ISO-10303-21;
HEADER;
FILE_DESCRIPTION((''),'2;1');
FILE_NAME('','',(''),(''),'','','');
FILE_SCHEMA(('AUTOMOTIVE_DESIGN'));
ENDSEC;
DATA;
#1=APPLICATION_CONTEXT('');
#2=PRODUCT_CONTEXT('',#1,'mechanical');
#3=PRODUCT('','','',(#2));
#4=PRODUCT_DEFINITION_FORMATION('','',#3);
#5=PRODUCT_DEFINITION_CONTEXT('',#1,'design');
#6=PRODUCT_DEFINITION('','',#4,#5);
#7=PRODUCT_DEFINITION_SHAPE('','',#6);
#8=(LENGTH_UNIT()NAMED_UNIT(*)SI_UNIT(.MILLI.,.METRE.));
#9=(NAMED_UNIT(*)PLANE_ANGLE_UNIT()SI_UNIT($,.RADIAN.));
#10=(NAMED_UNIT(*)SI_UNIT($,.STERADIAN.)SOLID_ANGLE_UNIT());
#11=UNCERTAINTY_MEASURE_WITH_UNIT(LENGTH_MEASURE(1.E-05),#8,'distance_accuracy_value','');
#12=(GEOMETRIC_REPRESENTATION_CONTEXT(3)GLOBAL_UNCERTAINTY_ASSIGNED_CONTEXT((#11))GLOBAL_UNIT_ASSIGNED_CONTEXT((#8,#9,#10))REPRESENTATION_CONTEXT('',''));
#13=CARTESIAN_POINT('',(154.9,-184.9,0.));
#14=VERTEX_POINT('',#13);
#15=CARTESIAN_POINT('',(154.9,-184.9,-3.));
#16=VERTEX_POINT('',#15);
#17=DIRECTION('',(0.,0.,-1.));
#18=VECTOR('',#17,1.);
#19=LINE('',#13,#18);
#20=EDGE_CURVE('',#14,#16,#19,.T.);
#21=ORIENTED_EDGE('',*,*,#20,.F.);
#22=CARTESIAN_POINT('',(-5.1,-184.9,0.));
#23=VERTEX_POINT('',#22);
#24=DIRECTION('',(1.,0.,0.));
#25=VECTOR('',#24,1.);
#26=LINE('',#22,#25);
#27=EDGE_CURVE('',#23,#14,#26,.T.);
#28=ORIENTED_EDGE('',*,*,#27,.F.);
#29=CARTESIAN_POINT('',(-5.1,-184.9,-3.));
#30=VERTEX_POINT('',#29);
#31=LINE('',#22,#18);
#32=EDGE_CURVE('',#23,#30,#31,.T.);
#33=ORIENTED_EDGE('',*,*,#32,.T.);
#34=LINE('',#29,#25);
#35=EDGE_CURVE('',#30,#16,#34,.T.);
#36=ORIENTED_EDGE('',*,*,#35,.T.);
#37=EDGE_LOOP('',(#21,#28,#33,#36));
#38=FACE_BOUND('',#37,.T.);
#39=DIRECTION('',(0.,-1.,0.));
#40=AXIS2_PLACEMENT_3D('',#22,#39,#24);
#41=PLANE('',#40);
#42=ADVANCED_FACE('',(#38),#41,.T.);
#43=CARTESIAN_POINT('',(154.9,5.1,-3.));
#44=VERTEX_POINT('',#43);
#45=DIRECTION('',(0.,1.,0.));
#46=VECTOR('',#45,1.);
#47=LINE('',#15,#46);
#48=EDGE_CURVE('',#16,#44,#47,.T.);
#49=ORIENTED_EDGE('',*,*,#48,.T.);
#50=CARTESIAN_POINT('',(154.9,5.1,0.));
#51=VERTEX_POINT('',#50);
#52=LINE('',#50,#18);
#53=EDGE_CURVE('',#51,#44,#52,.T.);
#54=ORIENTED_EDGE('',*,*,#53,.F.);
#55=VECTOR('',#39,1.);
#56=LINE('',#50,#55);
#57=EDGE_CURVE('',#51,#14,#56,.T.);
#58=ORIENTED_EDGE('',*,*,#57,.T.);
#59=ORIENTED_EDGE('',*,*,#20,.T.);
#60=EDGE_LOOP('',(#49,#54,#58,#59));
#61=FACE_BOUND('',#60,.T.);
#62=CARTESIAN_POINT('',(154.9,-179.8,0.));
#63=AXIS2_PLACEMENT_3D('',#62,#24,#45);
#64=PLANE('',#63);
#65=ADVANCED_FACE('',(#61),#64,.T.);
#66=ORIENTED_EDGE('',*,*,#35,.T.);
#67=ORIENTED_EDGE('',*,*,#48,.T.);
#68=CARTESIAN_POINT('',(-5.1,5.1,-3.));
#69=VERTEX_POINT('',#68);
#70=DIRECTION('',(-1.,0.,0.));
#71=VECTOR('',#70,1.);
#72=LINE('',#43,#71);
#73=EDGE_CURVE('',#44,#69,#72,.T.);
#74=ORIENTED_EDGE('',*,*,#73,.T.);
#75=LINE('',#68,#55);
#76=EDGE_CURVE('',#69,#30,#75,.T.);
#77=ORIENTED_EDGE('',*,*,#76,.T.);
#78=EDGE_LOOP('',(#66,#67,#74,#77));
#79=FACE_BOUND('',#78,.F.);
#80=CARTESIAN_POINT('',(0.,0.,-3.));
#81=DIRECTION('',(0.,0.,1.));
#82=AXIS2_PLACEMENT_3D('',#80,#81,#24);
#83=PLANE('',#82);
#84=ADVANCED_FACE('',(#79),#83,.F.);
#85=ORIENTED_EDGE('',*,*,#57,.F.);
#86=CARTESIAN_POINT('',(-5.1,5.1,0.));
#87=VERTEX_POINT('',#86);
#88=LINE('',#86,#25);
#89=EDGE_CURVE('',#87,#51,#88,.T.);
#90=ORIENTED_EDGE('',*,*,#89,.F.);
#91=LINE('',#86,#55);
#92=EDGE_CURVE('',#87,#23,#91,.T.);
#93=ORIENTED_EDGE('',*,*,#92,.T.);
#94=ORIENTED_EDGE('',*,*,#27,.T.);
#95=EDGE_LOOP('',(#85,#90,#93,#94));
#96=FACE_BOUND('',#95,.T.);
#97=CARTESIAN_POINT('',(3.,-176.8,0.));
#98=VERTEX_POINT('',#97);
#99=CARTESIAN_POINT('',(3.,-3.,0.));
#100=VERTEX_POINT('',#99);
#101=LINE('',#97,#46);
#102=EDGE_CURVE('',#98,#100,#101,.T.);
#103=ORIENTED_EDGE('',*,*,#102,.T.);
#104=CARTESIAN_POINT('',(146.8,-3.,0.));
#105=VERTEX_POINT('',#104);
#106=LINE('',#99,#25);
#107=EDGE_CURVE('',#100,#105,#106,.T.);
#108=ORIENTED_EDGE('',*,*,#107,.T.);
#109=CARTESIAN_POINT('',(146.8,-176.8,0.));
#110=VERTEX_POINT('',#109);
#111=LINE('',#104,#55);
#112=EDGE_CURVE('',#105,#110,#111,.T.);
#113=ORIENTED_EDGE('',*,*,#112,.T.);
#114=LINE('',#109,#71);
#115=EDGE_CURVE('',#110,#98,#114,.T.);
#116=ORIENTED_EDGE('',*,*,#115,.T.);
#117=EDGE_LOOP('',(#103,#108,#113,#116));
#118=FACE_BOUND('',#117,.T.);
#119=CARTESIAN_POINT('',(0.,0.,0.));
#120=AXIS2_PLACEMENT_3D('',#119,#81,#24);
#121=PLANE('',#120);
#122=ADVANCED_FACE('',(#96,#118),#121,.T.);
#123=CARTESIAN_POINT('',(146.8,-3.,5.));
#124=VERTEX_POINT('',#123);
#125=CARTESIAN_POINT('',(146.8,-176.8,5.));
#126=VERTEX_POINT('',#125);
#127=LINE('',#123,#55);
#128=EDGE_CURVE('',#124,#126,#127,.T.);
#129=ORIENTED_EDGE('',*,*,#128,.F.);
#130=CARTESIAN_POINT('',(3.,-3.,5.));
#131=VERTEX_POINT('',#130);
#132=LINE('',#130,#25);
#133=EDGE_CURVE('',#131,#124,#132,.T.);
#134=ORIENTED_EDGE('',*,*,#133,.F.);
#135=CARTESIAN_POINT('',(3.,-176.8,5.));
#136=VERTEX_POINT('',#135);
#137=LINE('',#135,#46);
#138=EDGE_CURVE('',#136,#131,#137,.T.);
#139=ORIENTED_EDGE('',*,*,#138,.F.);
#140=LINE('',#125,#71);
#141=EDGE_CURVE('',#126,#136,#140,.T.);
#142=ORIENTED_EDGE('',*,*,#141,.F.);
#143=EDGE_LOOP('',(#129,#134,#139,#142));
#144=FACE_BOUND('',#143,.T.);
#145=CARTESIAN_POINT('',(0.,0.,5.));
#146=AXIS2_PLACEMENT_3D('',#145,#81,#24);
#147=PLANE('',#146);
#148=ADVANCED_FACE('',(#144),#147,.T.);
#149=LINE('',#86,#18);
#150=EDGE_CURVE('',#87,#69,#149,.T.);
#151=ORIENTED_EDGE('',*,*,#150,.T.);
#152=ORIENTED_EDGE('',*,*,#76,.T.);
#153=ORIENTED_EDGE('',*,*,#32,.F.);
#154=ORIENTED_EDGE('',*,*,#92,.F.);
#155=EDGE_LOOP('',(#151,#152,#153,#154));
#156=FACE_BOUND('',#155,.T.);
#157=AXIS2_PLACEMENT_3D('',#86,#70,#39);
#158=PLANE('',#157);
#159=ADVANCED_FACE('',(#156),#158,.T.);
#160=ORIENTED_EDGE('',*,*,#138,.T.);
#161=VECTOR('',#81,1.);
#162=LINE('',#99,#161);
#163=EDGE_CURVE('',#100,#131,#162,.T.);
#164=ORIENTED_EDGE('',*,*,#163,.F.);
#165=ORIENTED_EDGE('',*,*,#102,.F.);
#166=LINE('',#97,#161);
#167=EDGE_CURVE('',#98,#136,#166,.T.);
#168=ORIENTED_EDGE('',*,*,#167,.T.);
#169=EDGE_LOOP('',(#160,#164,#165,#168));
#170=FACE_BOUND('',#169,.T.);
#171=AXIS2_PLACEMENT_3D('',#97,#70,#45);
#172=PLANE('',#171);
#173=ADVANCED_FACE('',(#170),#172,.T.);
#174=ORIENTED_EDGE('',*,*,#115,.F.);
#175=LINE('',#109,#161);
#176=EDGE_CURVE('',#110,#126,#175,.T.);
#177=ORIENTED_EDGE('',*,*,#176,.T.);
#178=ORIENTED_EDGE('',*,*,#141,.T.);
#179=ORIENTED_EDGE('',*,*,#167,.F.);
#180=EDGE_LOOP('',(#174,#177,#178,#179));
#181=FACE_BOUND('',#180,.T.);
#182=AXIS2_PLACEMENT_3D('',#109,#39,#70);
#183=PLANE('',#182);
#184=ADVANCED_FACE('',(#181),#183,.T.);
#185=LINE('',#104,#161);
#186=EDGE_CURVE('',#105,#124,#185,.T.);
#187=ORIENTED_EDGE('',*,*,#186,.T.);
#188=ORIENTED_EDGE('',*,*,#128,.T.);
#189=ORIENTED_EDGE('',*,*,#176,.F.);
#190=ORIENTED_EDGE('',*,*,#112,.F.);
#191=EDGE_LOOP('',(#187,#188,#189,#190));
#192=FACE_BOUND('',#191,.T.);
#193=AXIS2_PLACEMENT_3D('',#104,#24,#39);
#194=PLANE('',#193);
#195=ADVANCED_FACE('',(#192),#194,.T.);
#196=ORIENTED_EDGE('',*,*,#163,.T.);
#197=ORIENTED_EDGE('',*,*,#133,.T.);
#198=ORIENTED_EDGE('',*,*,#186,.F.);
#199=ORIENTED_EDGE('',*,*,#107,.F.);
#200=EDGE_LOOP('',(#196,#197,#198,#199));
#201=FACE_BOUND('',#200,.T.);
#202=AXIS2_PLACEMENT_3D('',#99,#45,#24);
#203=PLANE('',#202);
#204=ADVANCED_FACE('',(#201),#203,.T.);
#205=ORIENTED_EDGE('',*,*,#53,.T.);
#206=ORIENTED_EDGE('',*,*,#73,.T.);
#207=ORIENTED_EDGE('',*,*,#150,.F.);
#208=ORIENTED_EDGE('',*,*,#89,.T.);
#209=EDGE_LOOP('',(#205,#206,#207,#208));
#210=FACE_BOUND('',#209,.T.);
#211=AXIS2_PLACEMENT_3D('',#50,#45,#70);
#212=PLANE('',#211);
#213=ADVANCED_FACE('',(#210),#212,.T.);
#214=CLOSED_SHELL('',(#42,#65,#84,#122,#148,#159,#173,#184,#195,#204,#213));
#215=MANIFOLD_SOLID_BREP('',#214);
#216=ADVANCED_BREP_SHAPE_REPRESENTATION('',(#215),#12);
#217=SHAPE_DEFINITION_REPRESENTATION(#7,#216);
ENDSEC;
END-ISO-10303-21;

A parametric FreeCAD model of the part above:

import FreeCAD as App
import Part
import Sketcher
Q = App.Units.Quantity


def add_polygon(sketch, points):
    """Adds a closed chain of lines whose ends are joined by coincident constraints."""
    first, n = sketch.GeometryCount, len(points)
    for a, b in zip(points, points[1:] + points[:1]):
        sketch.addGeometry(Part.LineSegment(App.Vector(*a, 0), App.Vector(*b, 0)), False)
    for i in range(n):
        sketch.addConstraint(Sketcher.Constraint("Coincident", first + i, 2, first + (i + 1) % n, 1))

doc = App.newDocument("Part")
body = doc.addObject("PartDesign::Body", "Body")

# Sketch on XY plane
sketch1 = body.newObject("Sketcher::SketchObject", "Sketch")
sketch1.AttachmentSupport = (doc.getObject("XY_Plane"), [""])
sketch1.MapMode = "FlatFace"
add_polygon(sketch1, [(155, 5), (-5, 5), (-5, -185), (155, -185)])  # lines 0-3
sketch1.addConstraint(Sketcher.Constraint("Horizontal", 0))
sketch1.addConstraint(Sketcher.Constraint("Vertical", 1))
sketch1.addConstraint(Sketcher.Constraint("Horizontal", 2))
sketch1.addConstraint(Sketcher.Constraint("Vertical", 3))
sketch1.addConstraint(Sketcher.Constraint("DistanceX", 0, 2, 0, 1, Q("160 mm")))
sketch1.addConstraint(Sketcher.Constraint("DistanceY", 1, 2, 1, 1, Q("190 mm")))
sketch1.addConstraint(Sketcher.Constraint("DistanceX", 0, 2, -1, 1, Q("5.1 mm")))
sketch1.addConstraint(Sketcher.Constraint("DistanceY", -1, 1, 0, 2, Q("5.1 mm")))
pad1 = body.newObject("PartDesign::Pad", "Pad")
pad1.Profile = sketch1
pad1.Length = 3
pad1.Reversed = True

# Sketch on XY plane
sketch2 = body.newObject("Sketcher::SketchObject", "Sketch001")
sketch2.AttachmentSupport = (doc.getObject("XY_Plane"), [""])
sketch2.MapMode = "FlatFace"
add_polygon(sketch2, [(3, -177), (147, -177), (147, -3), (3, -3)])  # lines 0-3
sketch2.addConstraint(Sketcher.Constraint("Horizontal", 0))
sketch2.addConstraint(Sketcher.Constraint("Vertical", 1))
sketch2.addConstraint(Sketcher.Constraint("Horizontal", 2))
sketch2.addConstraint(Sketcher.Constraint("Vertical", 3))
sketch2.addConstraint(Sketcher.Constraint("DistanceX", 0, 1, 0, 2, Q("143.8 mm")))
sketch2.addConstraint(Sketcher.Constraint("DistanceY", 1, 1, 1, 2, Q("173.8 mm")))
sketch2.addConstraint(Sketcher.Constraint("DistanceY", 1, 2, -1, 1, Q("3 mm")))
sketch2.addConstraint(Sketcher.Constraint("DistanceX", -1, 1, 2, 2, Q("3 mm")))
pad2 = body.newObject("PartDesign::Pad", "Pad001")
pad2.Profile = sketch2
pad2.Length = 5

doc.recompute()
